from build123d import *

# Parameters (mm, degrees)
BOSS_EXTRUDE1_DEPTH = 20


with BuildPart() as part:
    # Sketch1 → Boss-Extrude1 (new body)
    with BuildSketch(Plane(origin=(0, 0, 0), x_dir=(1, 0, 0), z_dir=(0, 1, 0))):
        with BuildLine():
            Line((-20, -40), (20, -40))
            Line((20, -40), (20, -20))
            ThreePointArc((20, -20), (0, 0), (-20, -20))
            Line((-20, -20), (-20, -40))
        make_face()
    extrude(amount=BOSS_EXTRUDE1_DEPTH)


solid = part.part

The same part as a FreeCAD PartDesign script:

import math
import FreeCAD as App
import Part
import Sketcher
Q = App.Units.Quantity

doc = App.newDocument("Part")
params = doc.addObject("Spreadsheet::Sheet", "Params")
for row, (alias, value) in enumerate([
    ("sketch1_radius", "20 mm"),
    ("sketch1_height", "20 mm"),
    ("pad1_length", "20 mm"),
], start=1):
    params.set(f"A{row}", alias)
    params.set(f"B{row}", "=" + value)
    params.setAlias(f"B{row}", alias)

body = doc.addObject("PartDesign::Body", "Body")

# Sketch on XZ plane
sketch1 = body.newObject("Sketcher::SketchObject", "Sketch")
sketch1.AttachmentSupport = (doc.getObject("XZ_Plane"), [""])
sketch1.MapMode = "FlatFace"
sketch1.addGeometry(Part.LineSegment(App.Vector(-20, 40, 0), App.Vector(20, 40, 0)), False)
sketch1.addGeometry(Part.LineSegment(App.Vector(20, 40, 0), App.Vector(20, 20, 0)), False)
sketch1.addGeometry(Part.ArcOfCircle(Part.Circle(App.Vector(0, 20, 0), App.Vector(0, 0, 1), 20), math.radians(180), math.radians(360)), False)
sketch1.addGeometry(Part.LineSegment(App.Vector(-20, 20, 0), App.Vector(-20, 40, 0)), False)
sketch1.addConstraint(Sketcher.Constraint("Coincident", 0, 2, 1, 1))
sketch1.addConstraint(Sketcher.Constraint("Tangent", 1, 2, 2, 2))
sketch1.addConstraint(Sketcher.Constraint("Tangent", 2, 1, 3, 1))
sketch1.addConstraint(Sketcher.Constraint("Coincident", 3, 2, 0, 1))
sketch1.addConstraint(Sketcher.Constraint("Horizontal", 0))
sketch1.addConstraint(Sketcher.Constraint("Vertical", 1))
sketch1.addConstraint(Sketcher.Constraint("Vertical", 3))
sketch1.addConstraint(Sketcher.Constraint("PointOnObject", 2, 3, -2))
sketch1.addConstraint(Sketcher.Constraint("Radius", 2, Q("20 mm")))
sketch1.addConstraint(Sketcher.Constraint("DistanceY", 1, 2, 1, 1, Q("20 mm")))
sketch1.addConstraint(Sketcher.Constraint("DistanceY", -1, 1, 2, 3, Q("20 mm")))
sketch1.setExpression("Constraints[8]", "Params.sketch1_radius")
sketch1.setExpression("Constraints[9]", "Params.sketch1_height")
pad1 = body.newObject("PartDesign::Pad", "Pad")
pad1.Profile = sketch1
pad1.setExpression("Length", "Params.pad1_length")
pad1.Reversed = True

doc.recompute()
